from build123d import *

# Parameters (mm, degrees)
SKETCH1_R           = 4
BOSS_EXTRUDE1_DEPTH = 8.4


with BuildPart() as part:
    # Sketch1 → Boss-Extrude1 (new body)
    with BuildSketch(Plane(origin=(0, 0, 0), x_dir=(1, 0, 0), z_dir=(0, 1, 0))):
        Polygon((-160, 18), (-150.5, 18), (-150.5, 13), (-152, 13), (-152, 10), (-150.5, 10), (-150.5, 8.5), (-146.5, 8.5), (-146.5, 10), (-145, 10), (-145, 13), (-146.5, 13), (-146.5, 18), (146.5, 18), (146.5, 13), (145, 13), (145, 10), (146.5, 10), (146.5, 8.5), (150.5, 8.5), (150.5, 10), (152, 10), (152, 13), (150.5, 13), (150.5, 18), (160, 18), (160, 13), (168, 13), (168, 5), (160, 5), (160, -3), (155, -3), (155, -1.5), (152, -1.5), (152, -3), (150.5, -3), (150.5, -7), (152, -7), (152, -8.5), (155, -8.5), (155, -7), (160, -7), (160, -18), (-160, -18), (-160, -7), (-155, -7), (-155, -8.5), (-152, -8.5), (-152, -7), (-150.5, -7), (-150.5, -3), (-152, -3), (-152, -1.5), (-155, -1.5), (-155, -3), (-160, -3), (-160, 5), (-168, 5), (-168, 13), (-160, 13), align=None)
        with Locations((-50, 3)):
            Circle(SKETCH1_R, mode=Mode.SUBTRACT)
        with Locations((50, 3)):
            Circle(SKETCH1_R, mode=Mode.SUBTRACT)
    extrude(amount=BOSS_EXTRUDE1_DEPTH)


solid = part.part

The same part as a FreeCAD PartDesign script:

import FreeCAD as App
import Part
import Sketcher

V = App.Vector
Q = App.Units.Quantity

doc = App.newDocument("Part")
body = doc.addObject("PartDesign::Body", "Body")

# Sketch on XZ plane
sketch1 = body.newObject("Sketcher::SketchObject", "Sketch")
sketch1.AttachmentSupport = (doc.getObject("XZ_Plane"), [""])
sketch1.MapMode = "FlatFace"
sketch1.addGeometry(Part.LineSegment(V(-150.5, -18, 0), V(-160, -18, 0)), False)
sketch1.addGeometry(Part.LineSegment(V(-160, -18, 0), V(-160, -13, 0)), False)
sketch1.addGeometry(Part.LineSegment(V(-160, -13, 0), V(-168, -13, 0)), False)
sketch1.addGeometry(Part.LineSegment(V(-168, -13, 0), V(-168, -5, 0)), False)
sketch1.addGeometry(Part.LineSegment(V(-168, -5, 0), V(-160, -5, 0)), False)
sketch1.addGeometry(Part.LineSegment(V(-160, -5, 0), V(-160, 3, 0)), False)
sketch1.addGeometry(Part.LineSegment(V(-160, 3, 0), V(-155, 3, 0)), False)
sketch1.addGeometry(Part.LineSegment(V(-155, 3, 0), V(-155, 1.5, 0)), False)
sketch1.addGeometry(Part.LineSegment(V(-155, 1.5, 0), V(-152, 1.5, 0)), False)
sketch1.addGeometry(Part.LineSegment(V(-152, 1.5, 0), V(-152, 3, 0)), False)
sketch1.addGeometry(Part.LineSegment(V(-152, 3, 0), V(-150.5, 3, 0)), False)
sketch1.addGeometry(Part.LineSegment(V(-150.5, 3, 0), V(-150.5, 7, 0)), False)
sketch1.addGeometry(Part.LineSegment(V(-150.5, 7, 0), V(-152, 7, 0)), False)
sketch1.addGeometry(Part.LineSegment(V(-152, 7, 0), V(-152, 8.5, 0)), False)
sketch1.addGeometry(Part.LineSegment(V(-152, 8.5, 0), V(-155, 8.5, 0)), False)
sketch1.addGeometry(Part.LineSegment(V(-155, 8.5, 0), V(-155, 7, 0)), False)
sketch1.addGeometry(Part.LineSegment(V(-155, 7, 0), V(-160, 7, 0)), False)
sketch1.addGeometry(Part.LineSegment(V(-160, 7, 0), V(-160, 18, 0)), False)
sketch1.addGeometry(Part.LineSegment(V(-160, 18, 0), V(160, 18, 0)), False)
sketch1.addGeometry(Part.LineSegment(V(160, 18, 0), V(160, 7, 0)), False)
sketch1.addGeometry(Part.LineSegment(V(160, 7, 0), V(155, 7, 0)), False)
sketch1.addGeometry(Part.LineSegment(V(155, 7, 0), V(155, 8.5, 0)), False)
sketch1.addGeometry(Part.LineSegment(V(155, 8.5, 0), V(152, 8.5, 0)), False)
sketch1.addGeometry(Part.LineSegment(V(152, 8.5, 0), V(152, 7, 0)), False)
sketch1.addGeometry(Part.LineSegment(V(152, 7, 0), V(150.5, 7, 0)), False)
sketch1.addGeometry(Part.LineSegment(V(150.5, 7, 0), V(150.5, 3, 0)), False)
sketch1.addGeometry(Part.LineSegment(V(150.5, 3, 0), V(152, 3, 0)), False)
sketch1.addGeometry(Part.LineSegment(V(152, 3, 0), V(152, 1.5, 0)), False)
sketch1.addGeometry(Part.LineSegment(V(152, 1.5, 0), V(155, 1.5, 0)), False)
sketch1.addGeometry(Part.LineSegment(V(155, 1.5, 0), V(155, 3, 0)), False)
sketch1.addGeometry(Part.LineSegment(V(155, 3, 0), V(160, 3, 0)), False)
sketch1.addGeometry(Part.LineSegment(V(160, 3, 0), V(160, -5, 0)), False)
sketch1.addGeometry(Part.LineSegment(V(160, -5, 0), V(168, -5, 0)), False)
sketch1.addGeometry(Part.LineSegment(V(168, -5, 0), V(168, -13, 0)), False)
sketch1.addGeometry(Part.LineSegment(V(168, -13, 0), V(160, -13, 0)), False)
sketch1.addGeometry(Part.LineSegment(V(160, -13, 0), V(160, -18, 0)), False)
sketch1.addGeometry(Part.LineSegment(V(160, -18, 0), V(150.5, -18, 0)), False)
sketch1.addGeometry(Part.LineSegment(V(150.5, -18, 0), V(150.5, -13, 0)), False)
sketch1.addGeometry(Part.LineSegment(V(150.5, -13, 0), V(152, -13, 0)), False)
sketch1.addGeometry(Part.LineSegment(V(152, -13, 0), V(152, -10, 0)), False)
sketch1.addGeometry(Part.LineSegment(V(152, -10, 0), V(150.5, -10, 0)), False)
sketch1.addGeometry(Part.LineSegment(V(150.5, -10, 0), V(150.5, -8.5, 0)), False)
sketch1.addGeometry(Part.LineSegment(V(150.5, -8.5, 0), V(146.5, -8.5, 0)), False)
sketch1.addGeometry(Part.LineSegment(V(146.5, -8.5, 0), V(146.5, -10, 0)), False)
sketch1.addGeometry(Part.LineSegment(V(146.5, -10, 0), V(145, -10, 0)), False)
sketch1.addGeometry(Part.LineSegment(V(145, -10, 0), V(145, -13, 0)), False)
sketch1.addGeometry(Part.LineSegment(V(145, -13, 0), V(146.5, -13, 0)), False)
sketch1.addGeometry(Part.LineSegment(V(146.5, -13, 0), V(146.5, -18, 0)), False)
sketch1.addGeometry(Part.LineSegment(V(146.5, -18, 0), V(-146.5, -18, 0)), False)
sketch1.addGeometry(Part.LineSegment(V(-146.5, -18, 0), V(-146.5, -13, 0)), False)
sketch1.addGeometry(Part.LineSegment(V(-146.5, -13, 0), V(-145, -13, 0)), False)
sketch1.addGeometry(Part.LineSegment(V(-145, -13, 0), V(-145, -10, 0)), False)
sketch1.addGeometry(Part.LineSegment(V(-145, -10, 0), V(-146.5, -10, 0)), False)
sketch1.addGeometry(Part.LineSegment(V(-146.5, -10, 0), V(-146.5, -8.5, 0)), False)
sketch1.addGeometry(Part.LineSegment(V(-146.5, -8.5, 0), V(-150.5, -8.5, 0)), False)
sketch1.addGeometry(Part.LineSegment(V(-150.5, -8.5, 0), V(-150.5, -10, 0)), False)
sketch1.addGeometry(Part.LineSegment(V(-150.5, -10, 0), V(-152, -10, 0)), False)
sketch1.addGeometry(Part.LineSegment(V(-152, -10, 0), V(-152, -13, 0)), False)
sketch1.addGeometry(Part.LineSegment(V(-152, -13, 0), V(-150.5, -13, 0)), False)
sketch1.addGeometry(Part.LineSegment(V(-150.5, -13, 0), V(-150.5, -18, 0)), False)
sketch1.addGeometry(Part.Circle(V(50, -3, 0), V(0, 0, 1), 4), False)
sketch1.addGeometry(Part.Circle(V(-50, -3, 0), V(0, 0, 1), 4), False)
sketch1.addConstraint(Sketcher.Constraint("Coincident", 0, 2, 1, 1))
sketch1.addConstraint(Sketcher.Constraint("Coincident", 1, 2, 2, 1))
sketch1.addConstraint(Sketcher.Constraint("Coincident", 2, 2, 3, 1))
sketch1.addConstraint(Sketcher.Constraint("Coincident", 3, 2, 4, 1))
sketch1.addConstraint(Sketcher.Constraint("Coincident", 4, 2, 5, 1))
sketch1.addConstraint(Sketcher.Constraint("Coincident", 5, 2, 6, 1))
sketch1.addConstraint(Sketcher.Constraint("Coincident", 6, 2, 7, 1))
sketch1.addConstraint(Sketcher.Constraint("Coincident", 7, 2, 8, 1))
sketch1.addConstraint(Sketcher.Constraint("Coincident", 8, 2, 9, 1))
sketch1.addConstraint(Sketcher.Constraint("Coincident", 9, 2, 10, 1))
sketch1.addConstraint(Sketcher.Constraint("Coincident", 10, 2, 11, 1))
sketch1.addConstraint(Sketcher.Constraint("Coincident", 11, 2, 12, 1))
sketch1.addConstraint(Sketcher.Constraint("Coincident", 12, 2, 13, 1))
sketch1.addConstraint(Sketcher.Constraint("Coincident", 13, 2, 14, 1))
sketch1.addConstraint(Sketcher.Constraint("Coincident", 14, 2, 15, 1))
sketch1.addConstraint(Sketcher.Constraint("Coincident", 15, 2, 16, 1))
sketch1.addConstraint(Sketcher.Constraint("Coincident", 16, 2, 17, 1))
sketch1.addConstraint(Sketcher.Constraint("Coincident", 17, 2, 18, 1))
sketch1.addConstraint(Sketcher.Constraint("Coincident", 18, 2, 19, 1))
sketch1.addConstraint(Sketcher.Constraint("Coincident", 19, 2, 20, 1))
sketch1.addConstraint(Sketcher.Constraint("Coincident", 20, 2, 21, 1))
sketch1.addConstraint(Sketcher.Constraint("Coincident", 21, 2, 22, 1))
sketch1.addConstraint(Sketcher.Constraint("Coincident", 22, 2, 23, 1))
sketch1.addConstraint(Sketcher.Constraint("Coincident", 23, 2, 24, 1))
sketch1.addConstraint(Sketcher.Constraint("Coincident", 24, 2, 25, 1))
sketch1.addConstraint(Sketcher.Constraint("Coincident", 25, 2, 26, 1))
sketch1.addConstraint(Sketcher.Constraint("Coincident", 26, 2, 27, 1))
sketch1.addConstraint(Sketcher.Constraint("Coincident", 27, 2, 28, 1))
sketch1.addConstraint(Sketcher.Constraint("Coincident", 28, 2, 29, 1))
sketch1.addConstraint(Sketcher.Constraint("Coincident", 29, 2, 30, 1))
sketch1.addConstraint(Sketcher.Constraint("Coincident", 30, 2, 31, 1))
sketch1.addConstraint(Sketcher.Constraint("Coincident", 31, 2, 32, 1))
sketch1.addConstraint(Sketcher.Constraint("Coincident", 32, 2, 33, 1))
sketch1.addConstraint(Sketcher.Constraint("Coincident", 33, 2, 34, 1))
sketch1.addConstraint(Sketcher.Constraint("Coincident", 34, 2, 35, 1))
sketch1.addConstraint(Sketcher.Constraint("Coincident", 35, 2, 36, 1))
sketch1.addConstraint(Sketcher.Constraint("Coincident", 36, 2, 37, 1))
sketch1.addConstraint(Sketcher.Constraint("Coincident", 37, 2, 38, 1))
sketch1.addConstraint(Sketcher.Constraint("Coincident", 38, 2, 39, 1))
sketch1.addConstraint(Sketcher.Constraint("Coincident", 39, 2, 40, 1))
sketch1.addConstraint(Sketcher.Constraint("Coincident", 40, 2, 41, 1))
sketch1.addConstraint(Sketcher.Constraint("Coincident", 41, 2, 42, 1))
sketch1.addConstraint(Sketcher.Constraint("Coincident", 42, 2, 43, 1))
sketch1.addConstraint(Sketcher.Constraint("Coincident", 43, 2, 44, 1))
sketch1.addConstraint(Sketcher.Constraint("Coincident", 44, 2, 45, 1))
sketch1.addConstraint(Sketcher.Constraint("Coincident", 45, 2, 46, 1))
sketch1.addConstraint(Sketcher.Constraint("Coincident", 46, 2, 47, 1))
sketch1.addConstraint(Sketcher.Constraint("Coincident", 47, 2, 48, 1))
sketch1.addConstraint(Sketcher.Constraint("Coincident", 48, 2, 49, 1))
sketch1.addConstraint(Sketcher.Constraint("Coincident", 49, 2, 50, 1))
sketch1.addConstraint(Sketcher.Constraint("Coincident", 50, 2, 51, 1))
sketch1.addConstraint(Sketcher.Constraint("Coincident", 51, 2, 52, 1))
sketch1.addConstraint(Sketcher.Constraint("Coincident", 52, 2, 53, 1))
sketch1.addConstraint(Sketcher.Constraint("Coincident", 53, 2, 54, 1))
sketch1.addConstraint(Sketcher.Constraint("Coincident", 54, 2, 55, 1))
sketch1.addConstraint(Sketcher.Constraint("Coincident", 55, 2, 56, 1))
sketch1.addConstraint(Sketcher.Constraint("Coincident", 56, 2, 57, 1))
sketch1.addConstraint(Sketcher.Constraint("Coincident", 57, 2, 58, 1))
sketch1.addConstraint(Sketcher.Constraint("Coincident", 58, 2, 59, 1))
sketch1.addConstraint(Sketcher.Constraint("Coincident", 59, 2, 0, 1))
sketch1.addConstraint(Sketcher.Constraint("Horizontal", 0))
sketch1.addConstraint(Sketcher.Constraint("Vertical", 1))
sketch1.addConstraint(Sketcher.Constraint("Horizontal", 2))
sketch1.addConstraint(Sketcher.Constraint("Vertical", 3))
sketch1.addConstraint(Sketcher.Constraint("Horizontal", 4))
sketch1.addConstraint(Sketcher.Constraint("Vertical", 5))
sketch1.addConstraint(Sketcher.Constraint("Horizontal", 6))
sketch1.addConstraint(Sketcher.Constraint("Vertical", 7))
sketch1.addConstraint(Sketcher.Constraint("Horizontal", 8))
sketch1.addConstraint(Sketcher.Constraint("Vertical", 9))
sketch1.addConstraint(Sketcher.Constraint("Horizontal", 10))
sketch1.addConstraint(Sketcher.Constraint("Vertical", 11))
sketch1.addConstraint(Sketcher.Constraint("Horizontal", 12))
sketch1.addConstraint(Sketcher.Constraint("Vertical", 13))
sketch1.addConstraint(Sketcher.Constraint("Horizontal", 14))
sketch1.addConstraint(Sketcher.Constraint("Vertical", 15))
sketch1.addConstraint(Sketcher.Constraint("Horizontal", 16))
sketch1.addConstraint(Sketcher.Constraint("Vertical", 17))
sketch1.addConstraint(Sketcher.Constraint("Horizontal", 18))
sketch1.addConstraint(Sketcher.Constraint("Vertical", 19))
sketch1.addConstraint(Sketcher.Constraint("Horizontal", 20))
sketch1.addConstraint(Sketcher.Constraint("Vertical", 21))
sketch1.addConstraint(Sketcher.Constraint("Horizontal", 22))
sketch1.addConstraint(Sketcher.Constraint("Vertical", 23))
sketch1.addConstraint(Sketcher.Constraint("Horizontal", 24))
sketch1.addConstraint(Sketcher.Constraint("Vertical", 25))
sketch1.addConstraint(Sketcher.Constraint("Horizontal", 26))
sketch1.addConstraint(Sketcher.Constraint("Vertical", 27))
sketch1.addConstraint(Sketcher.Constraint("Horizontal", 28))
sketch1.addConstraint(Sketcher.Constraint("Vertical", 29))
sketch1.addConstraint(Sketcher.Constraint("Horizontal", 30))
sketch1.addConstraint(Sketcher.Constraint("Vertical", 31))
sketch1.addConstraint(Sketcher.Constraint("Horizontal", 32))
sketch1.addConstraint(Sketcher.Constraint("Vertical", 33))
sketch1.addConstraint(Sketcher.Constraint("Horizontal", 34))
sketch1.addConstraint(Sketcher.Constraint("Vertical", 35))
sketch1.addConstraint(Sketcher.Constraint("Horizontal", 36))
sketch1.addConstraint(Sketcher.Constraint("Vertical", 37))
sketch1.addConstraint(Sketcher.Constraint("Horizontal", 38))
sketch1.addConstraint(Sketcher.Constraint("Vertical", 39))
sketch1.addConstraint(Sketcher.Constraint("Horizontal", 40))
sketch1.addConstraint(Sketcher.Constraint("Vertical", 41))
sketch1.addConstraint(Sketcher.Constraint("Horizontal", 42))
sketch1.addConstraint(Sketcher.Constraint("Vertical", 43))
sketch1.addConstraint(Sketcher.Constraint("Horizontal", 44))
sketch1.addConstraint(Sketcher.Constraint("Vertical", 45))
sketch1.addConstraint(Sketcher.Constraint("Horizontal", 46))
sketch1.addConstraint(Sketcher.Constraint("Vertical", 47))
sketch1.addConstraint(Sketcher.Constraint("Horizontal", 48))
sketch1.addConstraint(Sketcher.Constraint("Vertical", 49))
sketch1.addConstraint(Sketcher.Constraint("Horizontal", 50))
sketch1.addConstraint(Sketcher.Constraint("Vertical", 51))
sketch1.addConstraint(Sketcher.Constraint("Horizontal", 52))
sketch1.addConstraint(Sketcher.Constraint("Vertical", 53))
sketch1.addConstraint(Sketcher.Constraint("Horizontal", 54))
sketch1.addConstraint(Sketcher.Constraint("Vertical", 55))
sketch1.addConstraint(Sketcher.Constraint("Horizontal", 56))
sketch1.addConstraint(Sketcher.Constraint("Vertical", 57))
sketch1.addConstraint(Sketcher.Constraint("Horizontal", 58))
sketch1.addConstraint(Sketcher.Constraint("Vertical", 59))
sketch1.addConstraint(Sketcher.Constraint("Equal", 60, 61))
sketch1.addConstraint(Sketcher.Constraint("Symmetric", 0, 2, 18, 2, -1, 1))
sketch1.addConstraint(Sketcher.Constraint("Symmetric", 17, 2, 35, 2, -1, 1))
sketch1.addConstraint(Sketcher.Constraint("Symmetric", 60, 3, 61, 3, -2))
sketch1.addConstraint(Sketcher.Constraint("Symmetric", 16, 2, 19, 2, -2))
sketch1.addConstraint(Sketcher.Constraint("Symmetric", 14, 2, 21, 2, -2))
sketch1.addConstraint(Sketcher.Constraint("Symmetric", 12, 2, 23, 2, -2))
sketch1.addConstraint(Sketcher.Constraint("Symmetric", 10, 2, 25, 2, -2))
sketch1.addConstraint(Sketcher.Constraint("Symmetric", 8, 2, 27, 2, -2))
sketch1.addConstraint(Sketcher.Constraint("Symmetric", 6, 2, 29, 2, -2))
sketch1.addConstraint(Sketcher.Constraint("Symmetric", 4, 2, 31, 2, -2))
sketch1.addConstraint(Sketcher.Constraint("Symmetric", 2, 2, 33, 2, -2))
sketch1.addConstraint(Sketcher.Constraint("Symmetric", 46, 2, 49, 2, -2))
sketch1.addConstraint(Sketcher.Constraint("Symmetric", 44, 2, 51, 2, -2))
sketch1.addConstraint(Sketcher.Constraint("Symmetric", 42, 2, 53, 2, -2))
sketch1.addConstraint(Sketcher.Constraint("Symmetric", 40, 2, 55, 2, -2))
sketch1.addConstraint(Sketcher.Constraint("Symmetric", 38, 2, 57, 2, -2))
sketch1.addConstraint(Sketcher.Constraint("Horizontal", 6, 2, 9, 2))
sketch1.addConstraint(Sketcher.Constraint("Horizontal", 12, 2, 15, 2))
sketch1.addConstraint(Sketcher.Constraint("Horizontal", 34, 2, 37, 2))
sketch1.addConstraint(Sketcher.Constraint("Horizontal", 40, 2, 43, 2))
sketch1.addConstraint(Sketcher.Constraint("Horizontal", 38, 2, 45, 2))
sketch1.addConstraint(Sketcher.Constraint("Horizontal", 36, 2, 47, 2))
sketch1.addConstraint(Sketcher.Constraint("Vertical", 1, 2, 4, 2))
sketch1.addConstraint(Sketcher.Constraint("Vertical", 9, 2, 12, 2))
sketch1.addConstraint(Sketcher.Constraint("Vertical", 7, 2, 14, 2))
sketch1.addConstraint(Sketcher.Constraint("Vertical", 25, 2, 36, 2))
sketch1.addConstraint(Sketcher.Constraint("Vertical", 27, 2, 38, 2))
sketch1.addConstraint(Sketcher.Constraint("Vertical", 37, 2, 40, 2))
sketch1.addConstraint(Sketcher.Constraint("Vertical", 43, 2, 46, 2))
sketch1.addConstraint(Sketcher.Constraint("Vertical", 55, 2, 58, 2))
sketch1.addConstraint(Sketcher.Constraint("Equal", 40, 44))
sketch1.addConstraint(Sketcher.Constraint("Equal", 30, 1))
sketch1.addConstraint(Sketcher.Constraint("Equal", 34, 3))
sketch1.addConstraint(Sketcher.Constraint("Equal", 3, 5))
sketch1.addConstraint(Sketcher.Constraint("Equal", 58, 7))
sketch1.addConstraint(Sketcher.Constraint("Equal", 54, 11))
sketch1.addConstraint(Sketcher.Constraint("Equal", 9, 13))
sketch1.addConstraint(Sketcher.Constraint("Equal", 28, 39))
sketch1.addConstraint(Sketcher.Constraint("Equal", 29, 41))
sketch1.addConstraint(Sketcher.Constraint("Diameter", 60, Q("8 mm")))
sketch1.addConstraint(Sketcher.Constraint("DistanceX", 2, 2, 2, 1, Q("8 mm")))
sketch1.addConstraint(Sketcher.Constraint("DistanceX", 6, 1, 6, 2, Q("5 mm")))
sketch1.addConstraint(Sketcher.Constraint("DistanceX", 8, 1, 8, 2, Q("3 mm")))
sketch1.addConstraint(Sketcher.Constraint("DistanceX", 18, 1, 18, 2, Q("320 mm")))
sketch1.addConstraint(Sketcher.Constraint("DistanceX", 42, 2, 42, 1, Q("4 mm")))
sketch1.addConstraint(Sketcher.Constraint("DistanceX", 48, 2, 48, 1, Q("293 mm")))
sketch1.addConstraint(Sketcher.Constraint("DistanceY", 17, 1, 17, 2, Q("11 mm")))
sketch1.addConstraint(Sketcher.Constraint("DistanceX", -1, 1, 60, 3, Q("50 mm")))
sketch1.addConstraint(Sketcher.Constraint("DistanceY", 60, 3, -1, 1, Q("3 mm")))
pad1 = body.newObject("PartDesign::Pad", "Pad")
pad1.Profile = sketch1
pad1.Length = 8.4
pad1.Reversed = True

doc.recompute()
